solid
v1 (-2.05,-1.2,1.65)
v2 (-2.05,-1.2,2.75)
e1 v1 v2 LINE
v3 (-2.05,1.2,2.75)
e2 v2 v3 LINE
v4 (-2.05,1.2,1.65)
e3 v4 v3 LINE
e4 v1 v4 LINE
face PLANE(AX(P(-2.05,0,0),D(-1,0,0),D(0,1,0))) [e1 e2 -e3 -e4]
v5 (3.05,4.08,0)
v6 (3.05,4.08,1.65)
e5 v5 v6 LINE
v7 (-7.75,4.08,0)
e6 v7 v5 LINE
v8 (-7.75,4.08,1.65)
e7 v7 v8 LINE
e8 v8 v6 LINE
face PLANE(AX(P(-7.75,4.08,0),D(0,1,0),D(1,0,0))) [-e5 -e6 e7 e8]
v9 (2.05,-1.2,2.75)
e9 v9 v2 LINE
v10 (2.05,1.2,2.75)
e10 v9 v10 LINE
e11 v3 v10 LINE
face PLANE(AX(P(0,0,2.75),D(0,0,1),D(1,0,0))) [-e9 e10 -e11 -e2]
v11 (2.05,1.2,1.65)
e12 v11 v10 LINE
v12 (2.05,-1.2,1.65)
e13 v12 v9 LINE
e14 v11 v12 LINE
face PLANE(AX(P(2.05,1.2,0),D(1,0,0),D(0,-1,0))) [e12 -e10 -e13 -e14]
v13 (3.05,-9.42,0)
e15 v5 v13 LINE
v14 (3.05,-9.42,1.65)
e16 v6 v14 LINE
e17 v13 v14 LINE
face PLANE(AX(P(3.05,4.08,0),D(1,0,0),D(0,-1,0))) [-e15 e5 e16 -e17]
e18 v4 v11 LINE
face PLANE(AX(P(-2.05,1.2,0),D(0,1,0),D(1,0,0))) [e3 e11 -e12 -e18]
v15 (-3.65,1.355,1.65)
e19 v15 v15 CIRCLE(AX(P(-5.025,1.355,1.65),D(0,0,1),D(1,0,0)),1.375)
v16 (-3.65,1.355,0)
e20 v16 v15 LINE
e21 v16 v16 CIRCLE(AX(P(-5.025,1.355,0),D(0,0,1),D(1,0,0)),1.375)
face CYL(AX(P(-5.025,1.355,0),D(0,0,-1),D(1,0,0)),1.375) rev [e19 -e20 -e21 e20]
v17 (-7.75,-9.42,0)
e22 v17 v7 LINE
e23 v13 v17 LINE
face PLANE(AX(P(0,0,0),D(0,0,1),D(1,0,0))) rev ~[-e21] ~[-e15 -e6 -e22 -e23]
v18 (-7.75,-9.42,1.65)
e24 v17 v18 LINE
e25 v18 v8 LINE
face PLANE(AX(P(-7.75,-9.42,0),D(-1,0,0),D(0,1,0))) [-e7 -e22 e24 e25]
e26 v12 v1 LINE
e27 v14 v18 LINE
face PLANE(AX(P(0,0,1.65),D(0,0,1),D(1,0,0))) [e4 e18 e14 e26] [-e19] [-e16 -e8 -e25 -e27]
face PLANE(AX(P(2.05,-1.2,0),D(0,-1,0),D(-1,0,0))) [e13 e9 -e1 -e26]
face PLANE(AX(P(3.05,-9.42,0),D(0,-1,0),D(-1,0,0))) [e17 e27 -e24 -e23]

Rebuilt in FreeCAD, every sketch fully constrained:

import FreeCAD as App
import Part
import Sketcher
from FreeCAD import Vector
Q = App.Units.Quantity


def add_polygon(sketch, points):
    """Adds a closed chain of lines whose ends are joined by coincident constraints."""
    first, n = sketch.GeometryCount, len(points)
    for a, b in zip(points, points[1:] + points[:1]):
        sketch.addGeometry(Part.LineSegment(App.Vector(*a, 0), App.Vector(*b, 0)), False)
    for i in range(n):
        sketch.addConstraint(Sketcher.Constraint("Coincident", first + i, 2, first + (i + 1) % n, 1))

doc = App.newDocument("Part")
body = doc.addObject("PartDesign::Body", "Body")

sketch1 = body.newObject("Sketcher::SketchObject", "Sketch")
sketch1.AttachmentSupport = (doc.getObject("XY_Plane"), [""])
sketch1.MapMode = "FlatFace"
add_polygon(sketch1, [(3, 4.1), (-7.8, 4.1), (-7.8, -9.4), (3, -9.4)])
sketch1.addGeometry(Part.Circle(Vector(-5, 1.4, 0), Vector(0, 0, 1), 1.4), False)
add_polygon(sketch1, [(-2, -1.2), (-2, 1.2), (2, 1.2), (2, -1.2)])
sketch1.addConstraint([
    Sketcher.Constraint("Horizontal", 0),
    Sketcher.Constraint("Vertical", 1),
    Sketcher.Constraint("Horizontal", 2),
    Sketcher.Constraint("Vertical", 3),
    Sketcher.Constraint("Vertical", 5),
    Sketcher.Constraint("Horizontal", 6),
    Sketcher.Constraint("Vertical", 7),
    Sketcher.Constraint("Horizontal", 8),
    Sketcher.Constraint("Symmetric", 5, 2, 7, 2, -1, 1),
    Sketcher.Constraint("Diameter", 4, Q("2.75 mm")),
    Sketcher.Constraint("DistanceX", 0, 2, 0, 1, Q("10.8 mm")),
    Sketcher.Constraint("DistanceX", 6, 1, 6, 2, Q("4.1 mm")),
    Sketcher.Constraint("DistanceY", 1, 2, 1, 1, Q("13.5 mm")),
    Sketcher.Constraint("DistanceY", 5, 1, 5, 2, Q("2.4 mm")),
    Sketcher.Constraint("DistanceX", 6, 2, 3, 2, Q("1 mm")),
    Sketcher.Constraint("DistanceY", 5, 2, 3, 2, Q("2.88 mm")),
    Sketcher.Constraint("DistanceX", 0, 2, 4, 3, Q("2.725 mm")),
    Sketcher.Constraint("DistanceY", 4, 3, 0, 2, Q("2.725 mm")),
])
pad1 = body.newObject("PartDesign::Pad", "Pad")
pad1.Profile = sketch1
pad1.Length = 1.65

sketch2 = body.newObject("Sketcher::SketchObject", "Sketch001")
sketch2.AttachmentSupport = (doc.getObject("XY_Plane"), [""])
sketch2.MapMode = "FlatFace"
add_polygon(sketch2, [(-2, 1.2), (-2, -1.2), (2, -1.2), (2, 1.2)])
sketch2.addConstraint([
    Sketcher.Constraint("Vertical", 0),
    Sketcher.Constraint("Horizontal", 1),
    Sketcher.Constraint("Vertical", 2),
    Sketcher.Constraint("Horizontal", 3),
    Sketcher.Constraint("Symmetric", 0, 2, 2, 2, -1, 1),
    Sketcher.Constraint("DistanceX", 1, 1, 1, 2, Q("4.1 mm")),
    Sketcher.Constraint("DistanceY", 0, 2, 0, 1, Q("2.4 mm")),
])
pad2 = body.newObject("PartDesign::Pad", "Pad001")
pad2.Profile = sketch2
pad2.Length = 2.75

doc.recompute()
